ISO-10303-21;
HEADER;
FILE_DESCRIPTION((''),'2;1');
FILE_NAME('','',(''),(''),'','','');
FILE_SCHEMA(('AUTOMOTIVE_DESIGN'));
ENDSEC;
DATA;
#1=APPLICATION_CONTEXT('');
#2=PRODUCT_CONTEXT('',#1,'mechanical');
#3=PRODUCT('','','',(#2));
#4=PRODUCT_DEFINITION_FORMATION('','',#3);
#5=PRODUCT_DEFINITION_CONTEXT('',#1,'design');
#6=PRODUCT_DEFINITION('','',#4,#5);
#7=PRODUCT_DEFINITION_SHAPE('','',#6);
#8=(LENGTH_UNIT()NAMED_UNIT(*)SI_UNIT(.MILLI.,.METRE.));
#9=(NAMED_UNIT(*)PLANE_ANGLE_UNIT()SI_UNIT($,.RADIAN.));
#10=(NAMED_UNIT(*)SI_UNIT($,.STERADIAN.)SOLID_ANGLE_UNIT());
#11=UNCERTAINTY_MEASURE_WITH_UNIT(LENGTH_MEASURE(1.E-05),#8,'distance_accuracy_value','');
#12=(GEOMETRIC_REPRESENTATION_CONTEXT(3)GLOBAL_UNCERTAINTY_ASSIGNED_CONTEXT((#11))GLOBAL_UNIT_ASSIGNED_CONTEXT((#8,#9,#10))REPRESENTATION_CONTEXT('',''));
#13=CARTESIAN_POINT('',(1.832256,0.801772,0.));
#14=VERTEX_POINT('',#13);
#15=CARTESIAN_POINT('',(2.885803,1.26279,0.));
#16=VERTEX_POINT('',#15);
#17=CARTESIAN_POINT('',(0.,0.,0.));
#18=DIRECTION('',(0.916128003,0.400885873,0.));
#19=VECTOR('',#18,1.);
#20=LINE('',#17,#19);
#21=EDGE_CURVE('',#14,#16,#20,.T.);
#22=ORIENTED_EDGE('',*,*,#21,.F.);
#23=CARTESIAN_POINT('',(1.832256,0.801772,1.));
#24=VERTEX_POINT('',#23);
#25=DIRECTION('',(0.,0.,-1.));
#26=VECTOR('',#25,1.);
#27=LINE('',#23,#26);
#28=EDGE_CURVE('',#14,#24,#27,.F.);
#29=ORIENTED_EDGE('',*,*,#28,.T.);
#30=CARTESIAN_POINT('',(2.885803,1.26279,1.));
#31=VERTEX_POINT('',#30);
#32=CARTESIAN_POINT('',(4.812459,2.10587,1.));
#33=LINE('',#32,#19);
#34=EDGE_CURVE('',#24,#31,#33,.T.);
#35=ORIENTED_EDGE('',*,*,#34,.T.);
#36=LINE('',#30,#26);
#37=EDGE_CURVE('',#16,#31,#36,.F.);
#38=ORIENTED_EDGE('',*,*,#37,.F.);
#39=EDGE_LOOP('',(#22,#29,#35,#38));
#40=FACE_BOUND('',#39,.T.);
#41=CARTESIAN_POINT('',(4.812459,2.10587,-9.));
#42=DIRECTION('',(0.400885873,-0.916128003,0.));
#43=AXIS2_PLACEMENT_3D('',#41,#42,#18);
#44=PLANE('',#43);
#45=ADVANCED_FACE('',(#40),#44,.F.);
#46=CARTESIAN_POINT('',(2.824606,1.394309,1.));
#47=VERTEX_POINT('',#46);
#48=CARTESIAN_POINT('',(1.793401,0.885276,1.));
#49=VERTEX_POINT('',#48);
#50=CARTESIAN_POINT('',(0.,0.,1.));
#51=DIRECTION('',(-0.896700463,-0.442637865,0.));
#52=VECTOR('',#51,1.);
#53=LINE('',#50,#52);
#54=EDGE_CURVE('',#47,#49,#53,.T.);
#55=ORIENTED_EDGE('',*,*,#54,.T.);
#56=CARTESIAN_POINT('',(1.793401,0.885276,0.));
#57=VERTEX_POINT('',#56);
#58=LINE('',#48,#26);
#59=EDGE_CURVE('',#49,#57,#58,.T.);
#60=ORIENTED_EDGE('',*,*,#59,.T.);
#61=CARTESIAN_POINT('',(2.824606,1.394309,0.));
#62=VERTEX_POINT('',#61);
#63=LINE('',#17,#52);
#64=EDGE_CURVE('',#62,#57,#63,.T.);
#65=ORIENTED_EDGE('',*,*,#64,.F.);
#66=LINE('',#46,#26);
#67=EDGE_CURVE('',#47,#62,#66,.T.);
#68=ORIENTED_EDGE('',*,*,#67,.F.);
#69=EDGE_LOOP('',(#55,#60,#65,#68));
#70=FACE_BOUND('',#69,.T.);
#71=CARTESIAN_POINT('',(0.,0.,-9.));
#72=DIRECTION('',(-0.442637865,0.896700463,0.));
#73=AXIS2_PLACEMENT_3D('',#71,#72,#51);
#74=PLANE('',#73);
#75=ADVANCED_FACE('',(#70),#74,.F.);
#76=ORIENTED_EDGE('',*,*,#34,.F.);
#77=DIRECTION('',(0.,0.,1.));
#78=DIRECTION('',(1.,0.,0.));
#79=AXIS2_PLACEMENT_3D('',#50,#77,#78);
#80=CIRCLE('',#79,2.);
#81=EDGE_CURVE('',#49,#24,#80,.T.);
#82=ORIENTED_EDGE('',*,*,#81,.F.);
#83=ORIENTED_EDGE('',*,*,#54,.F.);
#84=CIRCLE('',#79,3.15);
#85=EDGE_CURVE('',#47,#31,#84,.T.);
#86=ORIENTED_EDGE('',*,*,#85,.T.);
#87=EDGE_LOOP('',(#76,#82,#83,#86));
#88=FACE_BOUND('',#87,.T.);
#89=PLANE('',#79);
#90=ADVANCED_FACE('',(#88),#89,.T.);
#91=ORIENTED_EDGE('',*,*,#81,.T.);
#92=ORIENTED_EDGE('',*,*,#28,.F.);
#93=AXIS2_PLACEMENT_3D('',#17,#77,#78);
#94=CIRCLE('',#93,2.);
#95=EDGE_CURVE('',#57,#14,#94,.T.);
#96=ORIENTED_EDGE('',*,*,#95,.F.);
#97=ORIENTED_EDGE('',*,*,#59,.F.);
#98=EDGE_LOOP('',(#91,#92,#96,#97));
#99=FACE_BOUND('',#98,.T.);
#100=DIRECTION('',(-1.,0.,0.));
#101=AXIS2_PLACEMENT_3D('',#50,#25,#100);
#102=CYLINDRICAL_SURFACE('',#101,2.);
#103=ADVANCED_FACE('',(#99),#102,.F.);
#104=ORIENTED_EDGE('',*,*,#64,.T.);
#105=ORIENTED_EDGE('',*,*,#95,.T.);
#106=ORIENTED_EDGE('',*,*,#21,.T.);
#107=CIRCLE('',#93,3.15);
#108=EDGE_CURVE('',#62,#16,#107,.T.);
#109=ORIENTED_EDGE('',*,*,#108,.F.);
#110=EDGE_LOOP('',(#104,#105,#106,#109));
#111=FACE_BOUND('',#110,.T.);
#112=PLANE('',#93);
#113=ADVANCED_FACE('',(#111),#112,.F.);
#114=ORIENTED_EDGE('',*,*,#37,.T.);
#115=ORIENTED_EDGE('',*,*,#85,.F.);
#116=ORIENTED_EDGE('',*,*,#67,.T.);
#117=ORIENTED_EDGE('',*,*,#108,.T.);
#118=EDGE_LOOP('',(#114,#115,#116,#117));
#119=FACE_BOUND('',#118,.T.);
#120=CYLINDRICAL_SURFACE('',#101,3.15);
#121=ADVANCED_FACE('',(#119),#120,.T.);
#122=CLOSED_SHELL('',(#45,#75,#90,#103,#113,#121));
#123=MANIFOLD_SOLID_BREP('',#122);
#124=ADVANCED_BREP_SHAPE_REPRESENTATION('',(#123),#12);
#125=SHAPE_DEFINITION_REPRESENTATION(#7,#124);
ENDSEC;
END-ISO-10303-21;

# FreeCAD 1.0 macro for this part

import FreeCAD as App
import Part
import Sketcher
Q = App.Units.Quantity

doc = App.newDocument("Part")
body = doc.addObject("PartDesign::Body", "Body")

# Sketch on XY plane
sketch1 = body.newObject("Sketcher::SketchObject", "Sketch")
sketch1.AttachmentSupport = (doc.getObject("XY_Plane"), [""])
sketch1.MapMode = "FlatFace"
sketch1.addGeometry([
    Part.Circle(App.Vector(0, 0, 0), App.Vector(0, 0, 1), 3.1),
    Part.Circle(App.Vector(0, 0, 0), App.Vector(0, 0, 1), 2),
], False)
sketch1.addConstraint([
    Sketcher.Constraint("Coincident", 0, 3, -1, 1),
    Sketcher.Constraint("Coincident", 1, 3, -1, 1),
    Sketcher.Constraint("Diameter", 1, Q("4 mm")),
    Sketcher.Constraint("Diameter", 0, Q("6.3 mm")),
])
pad1 = body.newObject("PartDesign::Pad", "Pad")
pad1.Profile = sketch1
pad1.Length = 1

# Sketch on XY plane
sketch2 = body.newObject("Sketcher::SketchObject", "Sketch001")
sketch2.AttachmentSupport = (doc.getObject("XY_Plane"), [""])
sketch2.MapMode = "FlatFace"
sketch2.AttachmentOffset = App.Placement(App.Vector(0, 0, 1), App.Rotation())
sketch2.addGeometry([
    Part.LineSegment(App.Vector(4.81, 2.38, 0), App.Vector(0, 0, 0)),
    Part.LineSegment(App.Vector(0, 0, 0), App.Vector(4.81, 2.11, 0)),
    Part.LineSegment(App.Vector(4.81, 2.11, 0), App.Vector(4.81, 2.38, 0)),
], False)
sketch2.addConstraint([
    Sketcher.Constraint("Coincident", 0, 2, 1, 1),
    Sketcher.Constraint("Coincident", 1, 2, 2, 1),
    Sketcher.Constraint("Coincident", 2, 2, 0, 1),
    Sketcher.Constraint("Vertical", 2),
    Sketcher.Constraint("Coincident", 0, 2, -1, 1),
    Sketcher.Constraint("DistanceY", 2, 1, 2, 2, Q("0.269702 mm")),
    Sketcher.Constraint("DistanceX", -1, 1, 1, 2, Q("4.812459 mm")),
    Sketcher.Constraint("DistanceY", -1, 1, 1, 2, Q("2.10587 mm")),
])
pocket1 = body.newObject("PartDesign::Pocket", "Pocket")
pocket1.Profile = sketch2
pocket1.Length = 10

doc.recompute()
